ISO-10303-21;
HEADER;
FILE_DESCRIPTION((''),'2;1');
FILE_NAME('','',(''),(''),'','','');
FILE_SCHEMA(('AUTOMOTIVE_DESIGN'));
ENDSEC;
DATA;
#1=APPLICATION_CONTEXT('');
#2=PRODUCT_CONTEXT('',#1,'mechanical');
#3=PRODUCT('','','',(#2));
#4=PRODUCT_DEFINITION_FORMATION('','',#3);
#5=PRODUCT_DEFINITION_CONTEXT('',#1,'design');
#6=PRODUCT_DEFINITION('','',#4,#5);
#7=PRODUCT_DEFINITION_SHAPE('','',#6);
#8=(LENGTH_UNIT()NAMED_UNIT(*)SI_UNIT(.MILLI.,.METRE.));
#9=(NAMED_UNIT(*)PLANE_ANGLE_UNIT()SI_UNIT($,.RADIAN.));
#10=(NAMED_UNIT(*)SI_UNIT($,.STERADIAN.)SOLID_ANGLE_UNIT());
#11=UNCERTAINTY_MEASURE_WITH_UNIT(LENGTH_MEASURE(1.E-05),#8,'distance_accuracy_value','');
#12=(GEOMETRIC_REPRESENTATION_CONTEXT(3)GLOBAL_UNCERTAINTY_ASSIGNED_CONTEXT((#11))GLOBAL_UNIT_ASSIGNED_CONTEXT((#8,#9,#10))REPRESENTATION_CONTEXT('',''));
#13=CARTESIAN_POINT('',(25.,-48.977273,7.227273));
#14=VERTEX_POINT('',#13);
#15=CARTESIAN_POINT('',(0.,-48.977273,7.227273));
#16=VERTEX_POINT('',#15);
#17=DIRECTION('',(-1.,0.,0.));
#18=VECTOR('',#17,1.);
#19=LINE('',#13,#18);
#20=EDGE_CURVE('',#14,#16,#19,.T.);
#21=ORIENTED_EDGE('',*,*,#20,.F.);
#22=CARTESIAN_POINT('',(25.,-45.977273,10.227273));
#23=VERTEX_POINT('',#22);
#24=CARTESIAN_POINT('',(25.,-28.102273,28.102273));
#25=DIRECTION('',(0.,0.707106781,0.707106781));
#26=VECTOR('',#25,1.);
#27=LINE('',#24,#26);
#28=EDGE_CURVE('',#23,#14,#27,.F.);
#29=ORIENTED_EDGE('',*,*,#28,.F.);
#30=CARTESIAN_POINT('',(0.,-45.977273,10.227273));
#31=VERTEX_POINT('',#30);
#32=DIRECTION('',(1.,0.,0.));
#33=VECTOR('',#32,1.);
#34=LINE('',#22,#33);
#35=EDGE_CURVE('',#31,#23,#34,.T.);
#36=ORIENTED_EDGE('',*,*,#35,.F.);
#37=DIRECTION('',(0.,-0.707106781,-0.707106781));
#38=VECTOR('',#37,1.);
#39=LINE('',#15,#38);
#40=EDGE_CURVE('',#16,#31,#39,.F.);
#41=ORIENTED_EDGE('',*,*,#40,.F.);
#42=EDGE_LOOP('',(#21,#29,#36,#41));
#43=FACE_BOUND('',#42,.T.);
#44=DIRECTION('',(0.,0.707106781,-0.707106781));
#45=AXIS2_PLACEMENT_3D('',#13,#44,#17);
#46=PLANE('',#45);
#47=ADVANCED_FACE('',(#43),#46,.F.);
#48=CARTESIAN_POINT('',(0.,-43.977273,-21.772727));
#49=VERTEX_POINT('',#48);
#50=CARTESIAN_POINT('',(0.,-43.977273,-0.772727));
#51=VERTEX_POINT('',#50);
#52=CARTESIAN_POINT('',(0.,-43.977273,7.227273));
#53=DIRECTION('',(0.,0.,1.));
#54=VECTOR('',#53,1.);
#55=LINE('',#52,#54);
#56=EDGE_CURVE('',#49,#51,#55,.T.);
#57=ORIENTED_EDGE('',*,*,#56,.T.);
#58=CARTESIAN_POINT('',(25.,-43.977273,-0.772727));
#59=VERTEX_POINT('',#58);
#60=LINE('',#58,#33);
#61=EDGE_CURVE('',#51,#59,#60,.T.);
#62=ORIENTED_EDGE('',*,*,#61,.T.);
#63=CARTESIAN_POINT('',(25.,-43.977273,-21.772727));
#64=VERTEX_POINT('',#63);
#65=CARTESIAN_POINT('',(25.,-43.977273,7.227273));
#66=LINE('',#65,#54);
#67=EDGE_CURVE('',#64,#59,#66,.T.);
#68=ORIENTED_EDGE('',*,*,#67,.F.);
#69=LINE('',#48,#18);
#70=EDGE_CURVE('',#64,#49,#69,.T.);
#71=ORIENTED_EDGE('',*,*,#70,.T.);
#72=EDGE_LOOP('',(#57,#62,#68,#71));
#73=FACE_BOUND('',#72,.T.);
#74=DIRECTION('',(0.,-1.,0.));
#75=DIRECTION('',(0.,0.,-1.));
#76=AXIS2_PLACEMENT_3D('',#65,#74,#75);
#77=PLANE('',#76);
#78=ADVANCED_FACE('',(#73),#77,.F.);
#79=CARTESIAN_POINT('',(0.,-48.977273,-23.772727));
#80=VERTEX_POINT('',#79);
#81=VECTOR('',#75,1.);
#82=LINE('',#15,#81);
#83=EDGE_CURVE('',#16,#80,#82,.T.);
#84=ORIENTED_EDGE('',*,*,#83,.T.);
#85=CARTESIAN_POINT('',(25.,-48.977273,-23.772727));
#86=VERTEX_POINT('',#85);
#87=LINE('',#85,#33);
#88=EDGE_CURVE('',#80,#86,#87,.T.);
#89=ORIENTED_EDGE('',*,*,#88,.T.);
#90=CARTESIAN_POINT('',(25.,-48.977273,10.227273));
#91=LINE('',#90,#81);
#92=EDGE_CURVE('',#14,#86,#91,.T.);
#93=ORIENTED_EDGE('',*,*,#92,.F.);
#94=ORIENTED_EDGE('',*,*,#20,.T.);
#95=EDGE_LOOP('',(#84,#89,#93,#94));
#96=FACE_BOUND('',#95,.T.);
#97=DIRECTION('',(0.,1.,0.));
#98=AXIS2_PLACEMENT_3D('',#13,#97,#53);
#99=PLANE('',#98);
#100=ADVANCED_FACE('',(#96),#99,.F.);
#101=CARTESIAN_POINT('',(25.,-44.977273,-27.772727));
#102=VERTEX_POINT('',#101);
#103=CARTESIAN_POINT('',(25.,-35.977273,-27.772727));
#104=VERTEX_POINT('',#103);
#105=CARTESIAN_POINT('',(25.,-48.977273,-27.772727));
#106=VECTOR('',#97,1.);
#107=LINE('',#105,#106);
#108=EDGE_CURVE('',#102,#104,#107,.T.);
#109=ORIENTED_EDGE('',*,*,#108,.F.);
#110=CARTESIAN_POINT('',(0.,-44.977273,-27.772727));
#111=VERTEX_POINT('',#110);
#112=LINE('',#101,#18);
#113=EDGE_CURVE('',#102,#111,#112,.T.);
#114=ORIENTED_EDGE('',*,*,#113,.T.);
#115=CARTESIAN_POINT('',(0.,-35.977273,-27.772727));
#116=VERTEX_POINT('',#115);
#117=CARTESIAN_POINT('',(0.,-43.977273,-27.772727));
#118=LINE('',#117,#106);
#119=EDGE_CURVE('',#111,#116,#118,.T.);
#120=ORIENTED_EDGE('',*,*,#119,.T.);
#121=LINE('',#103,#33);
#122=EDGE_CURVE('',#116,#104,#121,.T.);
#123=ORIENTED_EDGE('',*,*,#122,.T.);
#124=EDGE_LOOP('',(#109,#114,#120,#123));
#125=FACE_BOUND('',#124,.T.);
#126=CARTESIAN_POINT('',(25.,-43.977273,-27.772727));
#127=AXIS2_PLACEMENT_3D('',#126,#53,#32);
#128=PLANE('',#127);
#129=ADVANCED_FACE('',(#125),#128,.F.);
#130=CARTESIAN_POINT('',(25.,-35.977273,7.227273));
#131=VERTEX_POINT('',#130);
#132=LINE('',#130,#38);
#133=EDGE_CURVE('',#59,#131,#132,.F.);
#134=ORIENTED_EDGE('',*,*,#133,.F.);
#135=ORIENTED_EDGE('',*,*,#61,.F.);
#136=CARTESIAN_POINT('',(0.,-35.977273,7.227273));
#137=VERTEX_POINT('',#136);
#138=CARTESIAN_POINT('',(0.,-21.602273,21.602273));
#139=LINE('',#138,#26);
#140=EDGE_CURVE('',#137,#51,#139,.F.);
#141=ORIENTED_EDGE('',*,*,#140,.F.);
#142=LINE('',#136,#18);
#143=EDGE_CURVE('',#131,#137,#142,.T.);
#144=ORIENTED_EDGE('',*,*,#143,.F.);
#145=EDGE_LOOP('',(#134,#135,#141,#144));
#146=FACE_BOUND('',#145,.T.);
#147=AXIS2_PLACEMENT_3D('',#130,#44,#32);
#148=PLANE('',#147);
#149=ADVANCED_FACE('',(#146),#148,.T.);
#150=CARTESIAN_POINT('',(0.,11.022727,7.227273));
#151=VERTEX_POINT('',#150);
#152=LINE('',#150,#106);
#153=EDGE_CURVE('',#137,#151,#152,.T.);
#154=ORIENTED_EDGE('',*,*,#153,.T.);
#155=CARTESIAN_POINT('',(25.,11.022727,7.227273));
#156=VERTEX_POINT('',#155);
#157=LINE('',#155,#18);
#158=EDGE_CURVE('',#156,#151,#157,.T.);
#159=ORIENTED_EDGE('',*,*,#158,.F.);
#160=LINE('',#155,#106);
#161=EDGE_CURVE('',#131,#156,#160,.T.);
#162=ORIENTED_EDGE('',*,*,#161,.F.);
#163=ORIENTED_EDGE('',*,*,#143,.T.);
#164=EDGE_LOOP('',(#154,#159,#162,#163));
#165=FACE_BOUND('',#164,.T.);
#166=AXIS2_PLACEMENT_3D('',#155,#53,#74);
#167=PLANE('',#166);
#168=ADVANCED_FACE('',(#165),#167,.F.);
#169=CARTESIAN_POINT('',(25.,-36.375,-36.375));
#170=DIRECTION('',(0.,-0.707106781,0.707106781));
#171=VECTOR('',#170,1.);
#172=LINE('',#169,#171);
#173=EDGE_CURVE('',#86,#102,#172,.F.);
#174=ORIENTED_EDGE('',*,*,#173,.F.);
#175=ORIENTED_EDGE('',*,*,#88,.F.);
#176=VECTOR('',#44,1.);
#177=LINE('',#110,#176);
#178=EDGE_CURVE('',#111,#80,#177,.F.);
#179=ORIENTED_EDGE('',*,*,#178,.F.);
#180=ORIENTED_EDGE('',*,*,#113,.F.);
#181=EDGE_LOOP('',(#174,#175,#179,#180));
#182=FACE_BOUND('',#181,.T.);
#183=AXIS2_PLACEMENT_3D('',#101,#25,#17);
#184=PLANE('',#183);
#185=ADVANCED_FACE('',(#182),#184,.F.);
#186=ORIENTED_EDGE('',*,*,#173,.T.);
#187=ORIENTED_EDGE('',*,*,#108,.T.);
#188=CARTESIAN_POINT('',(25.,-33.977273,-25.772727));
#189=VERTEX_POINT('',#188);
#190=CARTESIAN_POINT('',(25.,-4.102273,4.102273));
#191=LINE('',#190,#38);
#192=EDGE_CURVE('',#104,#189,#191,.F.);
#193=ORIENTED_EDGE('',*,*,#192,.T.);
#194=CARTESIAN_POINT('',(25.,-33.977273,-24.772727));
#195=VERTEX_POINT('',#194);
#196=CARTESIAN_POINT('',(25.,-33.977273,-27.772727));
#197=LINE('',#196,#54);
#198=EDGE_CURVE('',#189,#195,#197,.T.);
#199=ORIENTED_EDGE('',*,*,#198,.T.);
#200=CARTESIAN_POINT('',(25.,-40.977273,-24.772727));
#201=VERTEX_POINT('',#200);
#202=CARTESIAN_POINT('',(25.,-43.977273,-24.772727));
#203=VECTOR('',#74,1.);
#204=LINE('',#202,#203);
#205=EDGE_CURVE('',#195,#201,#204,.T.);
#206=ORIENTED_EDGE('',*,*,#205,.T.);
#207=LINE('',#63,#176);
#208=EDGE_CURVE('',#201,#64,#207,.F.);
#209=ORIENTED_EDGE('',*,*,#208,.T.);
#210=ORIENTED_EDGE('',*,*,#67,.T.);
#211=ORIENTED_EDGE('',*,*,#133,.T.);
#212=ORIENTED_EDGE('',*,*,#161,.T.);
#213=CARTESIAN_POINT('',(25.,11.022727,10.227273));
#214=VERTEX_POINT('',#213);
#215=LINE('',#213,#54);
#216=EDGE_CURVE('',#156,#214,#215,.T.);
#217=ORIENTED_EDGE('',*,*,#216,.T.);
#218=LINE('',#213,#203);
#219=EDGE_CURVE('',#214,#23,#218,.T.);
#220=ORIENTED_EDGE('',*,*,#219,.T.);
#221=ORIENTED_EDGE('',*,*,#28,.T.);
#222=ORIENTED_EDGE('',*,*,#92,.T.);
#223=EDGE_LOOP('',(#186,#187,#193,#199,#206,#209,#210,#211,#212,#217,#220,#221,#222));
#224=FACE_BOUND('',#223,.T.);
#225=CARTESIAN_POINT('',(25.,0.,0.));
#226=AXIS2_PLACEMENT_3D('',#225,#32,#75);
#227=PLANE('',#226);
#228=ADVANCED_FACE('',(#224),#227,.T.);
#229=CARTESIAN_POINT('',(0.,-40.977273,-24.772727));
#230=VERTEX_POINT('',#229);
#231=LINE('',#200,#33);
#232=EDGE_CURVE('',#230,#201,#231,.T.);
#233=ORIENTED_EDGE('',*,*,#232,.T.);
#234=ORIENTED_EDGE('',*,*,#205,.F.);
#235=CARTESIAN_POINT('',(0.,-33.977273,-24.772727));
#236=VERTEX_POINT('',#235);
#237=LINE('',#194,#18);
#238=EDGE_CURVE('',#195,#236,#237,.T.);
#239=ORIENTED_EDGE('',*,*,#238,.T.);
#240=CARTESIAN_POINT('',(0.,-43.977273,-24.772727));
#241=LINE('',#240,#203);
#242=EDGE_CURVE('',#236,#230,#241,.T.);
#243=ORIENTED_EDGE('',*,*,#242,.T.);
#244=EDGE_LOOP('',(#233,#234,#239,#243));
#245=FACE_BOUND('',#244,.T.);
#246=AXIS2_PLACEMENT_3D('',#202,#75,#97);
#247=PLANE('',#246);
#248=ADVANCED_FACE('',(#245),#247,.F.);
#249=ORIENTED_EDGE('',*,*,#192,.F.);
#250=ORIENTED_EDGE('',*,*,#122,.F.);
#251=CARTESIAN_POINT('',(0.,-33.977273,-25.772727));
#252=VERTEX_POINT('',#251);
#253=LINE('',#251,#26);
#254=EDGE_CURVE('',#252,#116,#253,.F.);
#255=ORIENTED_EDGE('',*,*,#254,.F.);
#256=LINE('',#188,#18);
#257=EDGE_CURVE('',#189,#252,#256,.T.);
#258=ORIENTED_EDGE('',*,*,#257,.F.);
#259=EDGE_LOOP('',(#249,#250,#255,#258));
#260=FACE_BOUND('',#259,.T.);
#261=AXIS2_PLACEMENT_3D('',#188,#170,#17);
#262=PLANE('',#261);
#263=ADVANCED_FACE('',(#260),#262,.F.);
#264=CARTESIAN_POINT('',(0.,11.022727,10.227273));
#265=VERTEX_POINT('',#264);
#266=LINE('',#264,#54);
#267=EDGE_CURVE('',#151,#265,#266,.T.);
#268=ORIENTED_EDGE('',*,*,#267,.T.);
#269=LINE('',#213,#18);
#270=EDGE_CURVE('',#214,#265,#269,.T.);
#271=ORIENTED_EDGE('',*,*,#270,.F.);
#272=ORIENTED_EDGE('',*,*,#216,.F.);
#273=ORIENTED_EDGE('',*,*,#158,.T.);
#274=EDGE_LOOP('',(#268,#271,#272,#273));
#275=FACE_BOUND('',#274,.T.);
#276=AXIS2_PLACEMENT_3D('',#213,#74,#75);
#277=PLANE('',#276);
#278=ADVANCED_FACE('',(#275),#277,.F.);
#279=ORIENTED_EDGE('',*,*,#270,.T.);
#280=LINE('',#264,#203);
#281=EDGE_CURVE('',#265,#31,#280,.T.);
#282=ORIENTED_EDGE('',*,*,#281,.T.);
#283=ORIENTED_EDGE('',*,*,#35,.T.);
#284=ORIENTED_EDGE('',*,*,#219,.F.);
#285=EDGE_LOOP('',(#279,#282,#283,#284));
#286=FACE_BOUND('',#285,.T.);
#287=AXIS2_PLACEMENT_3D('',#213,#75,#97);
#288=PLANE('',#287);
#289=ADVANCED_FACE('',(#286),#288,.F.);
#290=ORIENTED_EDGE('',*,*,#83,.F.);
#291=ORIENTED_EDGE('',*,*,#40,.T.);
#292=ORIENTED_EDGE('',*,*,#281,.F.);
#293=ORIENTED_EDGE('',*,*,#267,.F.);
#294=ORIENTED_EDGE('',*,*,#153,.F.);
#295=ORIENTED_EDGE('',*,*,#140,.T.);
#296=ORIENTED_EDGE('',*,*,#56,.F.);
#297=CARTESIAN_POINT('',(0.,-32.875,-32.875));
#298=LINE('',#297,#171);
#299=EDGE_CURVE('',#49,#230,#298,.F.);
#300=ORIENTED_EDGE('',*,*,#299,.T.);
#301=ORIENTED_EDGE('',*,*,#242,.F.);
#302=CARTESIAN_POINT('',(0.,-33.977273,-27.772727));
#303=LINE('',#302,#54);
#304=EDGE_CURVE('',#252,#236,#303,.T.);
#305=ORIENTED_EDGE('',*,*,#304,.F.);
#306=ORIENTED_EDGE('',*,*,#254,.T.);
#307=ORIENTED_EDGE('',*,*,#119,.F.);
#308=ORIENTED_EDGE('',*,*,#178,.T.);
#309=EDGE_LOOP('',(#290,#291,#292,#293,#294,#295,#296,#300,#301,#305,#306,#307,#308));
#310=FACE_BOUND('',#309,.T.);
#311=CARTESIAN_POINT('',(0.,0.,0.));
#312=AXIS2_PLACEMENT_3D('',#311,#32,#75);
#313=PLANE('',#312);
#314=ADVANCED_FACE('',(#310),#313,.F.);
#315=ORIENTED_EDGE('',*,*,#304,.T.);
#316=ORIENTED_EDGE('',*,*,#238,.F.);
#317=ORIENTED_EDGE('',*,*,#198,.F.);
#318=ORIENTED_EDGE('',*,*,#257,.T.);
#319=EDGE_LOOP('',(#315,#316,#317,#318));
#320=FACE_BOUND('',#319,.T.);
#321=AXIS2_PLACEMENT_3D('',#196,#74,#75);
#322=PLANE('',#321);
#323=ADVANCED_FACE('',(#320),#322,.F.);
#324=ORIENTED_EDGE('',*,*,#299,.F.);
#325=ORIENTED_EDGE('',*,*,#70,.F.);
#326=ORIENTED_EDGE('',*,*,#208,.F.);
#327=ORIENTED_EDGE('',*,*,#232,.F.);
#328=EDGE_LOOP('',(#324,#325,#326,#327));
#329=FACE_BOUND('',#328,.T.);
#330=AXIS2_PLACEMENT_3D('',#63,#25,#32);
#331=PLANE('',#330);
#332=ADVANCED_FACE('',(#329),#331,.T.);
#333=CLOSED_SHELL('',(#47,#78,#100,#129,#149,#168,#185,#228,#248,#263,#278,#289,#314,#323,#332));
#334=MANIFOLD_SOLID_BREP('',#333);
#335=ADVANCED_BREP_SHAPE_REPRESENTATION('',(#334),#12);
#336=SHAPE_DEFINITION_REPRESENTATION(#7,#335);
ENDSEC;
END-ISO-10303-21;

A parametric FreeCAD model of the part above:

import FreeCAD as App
import Part
import Sketcher
Q = App.Units.Quantity


def edges_at(feature, points):
    """Names of the edges that pass closest to the given points."""
    edges = feature.Shape.Edges
    near = lambda p: min(range(len(edges)), key=lambda i: edges[i].distToShape(Part.Vertex(*p))[0])
    return sorted({f"Edge{near(p) + 1}" for p in points})


def add_polygon(sketch, points):
    """Adds a closed chain of lines whose ends are joined by coincident constraints."""
    first, n = sketch.GeometryCount, len(points)
    for a, b in zip(points, points[1:] + points[:1]):
        sketch.addGeometry(Part.LineSegment(App.Vector(*a, 0), App.Vector(*b, 0)), False)
    for i in range(n):
        sketch.addConstraint(Sketcher.Constraint("Coincident", first + i, 2, first + (i + 1) % n, 1))

doc = App.newDocument("Part")
body = doc.addObject("PartDesign::Body", "Body")

# Sketch on YZ plane
sketch1 = body.newObject("Sketcher::SketchObject", "Sketch")
sketch1.AttachmentSupport = (doc.getObject("YZ_Plane"), [""])
sketch1.MapMode = "FlatFace"
add_polygon(sketch1, [(11, 7.2), (11, 10.2), (-49, 10.2), (-49, -27.8), (-34, -27.8), (-34, -24.8), (-44, -24.8), (-44, 7.2)])  # lines 0-7
sketch1.addConstraint(Sketcher.Constraint("Vertical", 0))
sketch1.addConstraint(Sketcher.Constraint("Horizontal", 1))
sketch1.addConstraint(Sketcher.Constraint("Vertical", 2))
sketch1.addConstraint(Sketcher.Constraint("Horizontal", 3))
sketch1.addConstraint(Sketcher.Constraint("Vertical", 4))
sketch1.addConstraint(Sketcher.Constraint("Horizontal", 5))
sketch1.addConstraint(Sketcher.Constraint("Vertical", 6))
sketch1.addConstraint(Sketcher.Constraint("Horizontal", 7))
sketch1.addConstraint(Sketcher.Constraint("Equal", 0, 4))
sketch1.addConstraint(Sketcher.Constraint("DistanceX", 1, 2, 1, 1, Q("60 mm")))
sketch1.addConstraint(Sketcher.Constraint("DistanceX", 3, 1, 3, 2, Q("15 mm")))
sketch1.addConstraint(Sketcher.Constraint("DistanceX", 5, 2, 5, 1, Q("10 mm")))
sketch1.addConstraint(Sketcher.Constraint("DistanceY", 0, 1, 0, 2, Q("3 mm")))
sketch1.addConstraint(Sketcher.Constraint("DistanceY", 2, 2, 2, 1, Q("38 mm")))
sketch1.addConstraint(Sketcher.Constraint("DistanceX", -1, 1, 0, 2, Q("11.022727 mm")))
sketch1.addConstraint(Sketcher.Constraint("DistanceY", -1, 1, 0, 2, Q("10.227273 mm")))
pad1 = body.newObject("PartDesign::Pad", "Pad")
pad1.Profile = sketch1
pad1.Length = 25
doc.recompute()

chamfer = body.newObject("PartDesign::Chamfer", "Chamfer")
chamfer.Base = (pad1, edges_at(pad1, [(12.5, -43.977, 7.227)]))
chamfer.Size = 8
doc.recompute()

chamfer2 = body.newObject("PartDesign::Chamfer", "Chamfer001")
chamfer2.Base = (chamfer, edges_at(chamfer, [(12.5, -43.977, -24.773), (12.5, -48.977, 10.227)]))
chamfer2.Size = 3
doc.recompute()

chamfer3 = body.newObject("PartDesign::Chamfer", "Chamfer002")
chamfer3.Base = (chamfer2, edges_at(chamfer2, [(12.5, -48.977, -27.773)]))
chamfer3.Size = 4
doc.recompute()

chamfer4 = body.newObject("PartDesign::Chamfer", "Chamfer003")
chamfer4.Base = (chamfer3, edges_at(chamfer3, [(12.5, -33.977, -27.773)]))
chamfer4.Size = 2

doc.recompute()
